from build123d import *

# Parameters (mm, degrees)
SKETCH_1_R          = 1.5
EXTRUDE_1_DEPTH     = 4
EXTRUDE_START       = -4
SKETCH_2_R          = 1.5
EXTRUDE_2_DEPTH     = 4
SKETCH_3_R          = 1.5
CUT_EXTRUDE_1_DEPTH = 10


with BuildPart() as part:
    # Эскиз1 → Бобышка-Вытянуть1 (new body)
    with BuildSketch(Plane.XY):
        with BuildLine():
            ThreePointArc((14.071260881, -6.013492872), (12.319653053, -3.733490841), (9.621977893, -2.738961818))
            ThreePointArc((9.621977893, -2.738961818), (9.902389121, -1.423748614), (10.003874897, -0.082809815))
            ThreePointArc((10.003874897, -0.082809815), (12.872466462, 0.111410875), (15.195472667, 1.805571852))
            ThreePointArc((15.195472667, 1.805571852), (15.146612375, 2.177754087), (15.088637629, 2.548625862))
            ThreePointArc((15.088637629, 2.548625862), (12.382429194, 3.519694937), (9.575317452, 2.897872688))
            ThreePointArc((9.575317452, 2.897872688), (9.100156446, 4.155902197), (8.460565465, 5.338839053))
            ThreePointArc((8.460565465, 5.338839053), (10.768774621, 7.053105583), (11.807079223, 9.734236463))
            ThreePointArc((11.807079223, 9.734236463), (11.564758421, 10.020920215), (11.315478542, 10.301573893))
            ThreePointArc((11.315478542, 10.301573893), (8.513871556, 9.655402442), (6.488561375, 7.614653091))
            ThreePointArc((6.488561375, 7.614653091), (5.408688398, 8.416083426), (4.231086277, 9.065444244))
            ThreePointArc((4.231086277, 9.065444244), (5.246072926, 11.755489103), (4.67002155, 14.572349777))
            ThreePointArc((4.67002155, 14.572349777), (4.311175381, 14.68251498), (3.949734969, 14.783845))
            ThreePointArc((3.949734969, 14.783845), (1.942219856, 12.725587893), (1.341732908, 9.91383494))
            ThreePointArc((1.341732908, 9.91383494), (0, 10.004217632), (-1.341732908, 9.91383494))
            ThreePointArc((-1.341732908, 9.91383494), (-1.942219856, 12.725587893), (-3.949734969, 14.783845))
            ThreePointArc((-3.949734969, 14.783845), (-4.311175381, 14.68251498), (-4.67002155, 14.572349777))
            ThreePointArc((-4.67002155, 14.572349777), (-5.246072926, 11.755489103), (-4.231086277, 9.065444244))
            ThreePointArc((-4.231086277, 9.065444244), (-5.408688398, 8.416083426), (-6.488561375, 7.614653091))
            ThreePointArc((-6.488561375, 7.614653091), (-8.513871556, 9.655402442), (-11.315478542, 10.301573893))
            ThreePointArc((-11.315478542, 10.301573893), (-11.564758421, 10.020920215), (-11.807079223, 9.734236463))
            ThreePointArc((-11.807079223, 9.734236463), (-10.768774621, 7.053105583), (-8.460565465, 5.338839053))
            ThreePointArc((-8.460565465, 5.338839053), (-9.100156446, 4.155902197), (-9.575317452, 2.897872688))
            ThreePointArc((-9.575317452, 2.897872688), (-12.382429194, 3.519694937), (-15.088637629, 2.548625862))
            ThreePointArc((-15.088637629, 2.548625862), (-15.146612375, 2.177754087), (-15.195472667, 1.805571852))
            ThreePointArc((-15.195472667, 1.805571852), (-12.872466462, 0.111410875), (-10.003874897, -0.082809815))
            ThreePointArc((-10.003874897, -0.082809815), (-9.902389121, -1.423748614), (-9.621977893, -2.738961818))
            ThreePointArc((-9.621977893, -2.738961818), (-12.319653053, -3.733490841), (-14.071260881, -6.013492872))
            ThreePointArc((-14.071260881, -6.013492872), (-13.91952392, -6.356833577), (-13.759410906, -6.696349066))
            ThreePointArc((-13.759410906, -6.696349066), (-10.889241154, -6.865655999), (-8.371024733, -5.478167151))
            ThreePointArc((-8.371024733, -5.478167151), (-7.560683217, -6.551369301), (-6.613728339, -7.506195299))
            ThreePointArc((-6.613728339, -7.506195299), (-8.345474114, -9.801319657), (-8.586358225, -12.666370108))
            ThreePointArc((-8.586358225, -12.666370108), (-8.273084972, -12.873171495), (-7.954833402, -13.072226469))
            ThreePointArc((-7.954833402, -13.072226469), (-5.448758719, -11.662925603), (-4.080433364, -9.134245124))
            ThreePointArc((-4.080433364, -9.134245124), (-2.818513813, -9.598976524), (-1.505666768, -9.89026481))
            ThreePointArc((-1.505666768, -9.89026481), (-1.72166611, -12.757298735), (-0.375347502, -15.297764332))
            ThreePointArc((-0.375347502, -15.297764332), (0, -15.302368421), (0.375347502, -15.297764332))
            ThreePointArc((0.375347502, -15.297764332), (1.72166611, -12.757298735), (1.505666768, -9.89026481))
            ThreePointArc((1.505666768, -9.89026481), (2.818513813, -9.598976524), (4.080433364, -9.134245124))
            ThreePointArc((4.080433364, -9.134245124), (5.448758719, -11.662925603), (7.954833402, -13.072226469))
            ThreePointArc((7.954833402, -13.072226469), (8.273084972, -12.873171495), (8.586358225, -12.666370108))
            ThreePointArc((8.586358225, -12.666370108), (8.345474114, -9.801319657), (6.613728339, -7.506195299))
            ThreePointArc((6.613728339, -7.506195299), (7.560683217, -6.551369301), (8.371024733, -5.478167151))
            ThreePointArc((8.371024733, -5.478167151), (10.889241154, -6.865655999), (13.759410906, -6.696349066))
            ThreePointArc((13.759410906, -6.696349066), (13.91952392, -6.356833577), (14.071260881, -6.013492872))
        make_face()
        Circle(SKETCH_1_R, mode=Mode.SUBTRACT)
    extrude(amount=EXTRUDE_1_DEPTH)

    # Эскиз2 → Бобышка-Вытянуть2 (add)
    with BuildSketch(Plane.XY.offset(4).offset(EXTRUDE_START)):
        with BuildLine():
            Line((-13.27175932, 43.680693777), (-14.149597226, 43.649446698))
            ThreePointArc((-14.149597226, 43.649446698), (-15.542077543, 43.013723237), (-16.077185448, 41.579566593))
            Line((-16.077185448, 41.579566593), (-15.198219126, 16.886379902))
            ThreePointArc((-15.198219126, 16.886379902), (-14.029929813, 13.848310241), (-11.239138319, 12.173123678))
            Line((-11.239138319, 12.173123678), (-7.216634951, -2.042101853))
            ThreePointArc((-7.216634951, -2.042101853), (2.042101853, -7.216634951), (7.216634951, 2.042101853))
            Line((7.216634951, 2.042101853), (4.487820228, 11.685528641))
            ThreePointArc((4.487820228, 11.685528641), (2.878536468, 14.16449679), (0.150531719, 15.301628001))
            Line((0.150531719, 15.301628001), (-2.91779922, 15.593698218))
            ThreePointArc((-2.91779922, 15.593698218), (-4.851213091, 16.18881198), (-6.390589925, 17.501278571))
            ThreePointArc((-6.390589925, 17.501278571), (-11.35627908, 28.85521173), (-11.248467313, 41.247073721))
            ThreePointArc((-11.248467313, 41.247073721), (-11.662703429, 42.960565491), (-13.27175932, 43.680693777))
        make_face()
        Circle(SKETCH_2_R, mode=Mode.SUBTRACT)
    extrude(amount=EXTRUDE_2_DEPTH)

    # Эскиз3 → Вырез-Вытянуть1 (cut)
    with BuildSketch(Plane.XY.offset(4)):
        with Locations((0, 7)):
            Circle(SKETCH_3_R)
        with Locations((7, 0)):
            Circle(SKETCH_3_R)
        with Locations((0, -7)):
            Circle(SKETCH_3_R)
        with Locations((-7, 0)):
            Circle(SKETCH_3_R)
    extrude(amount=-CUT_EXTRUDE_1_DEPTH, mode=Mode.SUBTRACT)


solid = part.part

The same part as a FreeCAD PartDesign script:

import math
import FreeCAD as App
import Part
import Sketcher

V = App.Vector

doc = App.newDocument("Part")
params = doc.addObject("Spreadsheet::Sheet", "Params")
for row, (alias, value) in enumerate([
    ("sketch1_diameter", "3 mm"),
    ("pad1_length", "4 mm"),
    ("sketch2_diameter", "3 mm"),
    ("sketch2_radius", "2 mm"),
    ("sketch2_radius2", "5 mm"),
    ("sketch2_radius3", "5 mm"),
    ("sketch2_radius4", "5 mm"),
    ("pad2_length", "4 mm"),
    ("sketch3_diameter", "3 mm"),
    ("pocket1_length", "10 mm"),
], start=1):
    params.set(f"A{row}", alias)
    params.set(f"B{row}", "=" + value)
    params.setAlias(f"B{row}", alias)

body = doc.addObject("PartDesign::Body", "Body")

sketch1 = body.newObject("Sketcher::SketchObject", "Sketch")
sketch1.AttachmentSupport = (doc.getObject("XY_Plane"), [""])
sketch1.MapMode = "FlatFace"
sketch1.addGeometry([
    Part.ArcOfCircle(Part.Circle(V(9.2, -7.9, 0), V(0, 0, 1), 5.2), math.radians(21), math.radians(86)),
    Part.ArcOfCircle(Part.Circle(V(0, 0, 0), V(0, 0, 1), 10), math.radians(-15.89), math.radians(-0.47)),
    Part.ArcOfCircle(Part.Circle(V(11.1, 5, 0), V(0, 0, 1), 5.2), math.radians(-102), math.radians(-38)),
    Part.ArcOfCircle(Part.Circle(V(0, 0, 0), V(0, 0, 1), 15.3), math.radians(6.78), math.radians(9.59)),
    Part.ArcOfCircle(Part.Circle(V(12.1, -1.6, 0), V(0, 0, 1), 5.2), math.radians(54), math.radians(119)),
    Part.ArcOfCircle(Part.Circle(V(0, 0, 0), V(0, 0, 1), 10), math.radians(16.84), math.radians(32.25)),
    Part.ArcOfCircle(Part.Circle(V(6.6, 10.2, 0), V(0, 0, 1), 5.2), math.radians(-70), math.radians(-5)),
    Part.ArcOfCircle(Part.Circle(V(0, 0, 0), V(0, 0, 1), 15.3), math.radians(39.5), math.radians(42.31)),
    Part.ArcOfCircle(Part.Circle(V(11, 5.1, 0), V(0, 0, 1), 5.2), math.radians(87), math.radians(151)),
    Part.ArcOfCircle(Part.Circle(V(0, 0, 0), V(0, 0, 1), 10), math.radians(49.57), math.radians(64.98)),
    Part.ArcOfCircle(Part.Circle(V(0.1, 12.2, 0), V(0, 0, 1), 5.2), math.radians(-37), math.radians(28)),
    Part.ArcOfCircle(Part.Circle(V(0, 0, 0), V(0, 0, 1), 15.3), math.radians(72.23), math.radians(75.04)),
    Part.ArcOfCircle(Part.Circle(V(6.5, 10.3, 0), V(0, 0, 1), 5.2), math.radians(120), math.radians(184)),
    Part.ArcOfCircle(Part.Circle(V(0, 0, 0), V(0, 0, 1), 10), math.radians(82.29), math.radians(97.71)),
    Part.ArcOfCircle(Part.Circle(V(-6.5, 10.3, 0), V(0, 0, 1), 5.2), math.radians(-4), math.radians(60)),
    Part.ArcOfCircle(Part.Circle(V(0, 0, 0), V(0, 0, 1), 15.3), math.radians(104.96), math.radians(107.77)),
    Part.ArcOfCircle(Part.Circle(V(-0.1, 12.2, 0), V(0, 0, 1), 5.2), math.radians(152), math.radians(217)),
    Part.ArcOfCircle(Part.Circle(V(0, 0, 0), V(0, 0, 1), 10), math.radians(115.02), math.radians(130.43)),
    Part.ArcOfCircle(Part.Circle(V(-11, 5.1, 0), V(0, 0, 1), 5.2), math.radians(29), math.radians(93)),
    Part.ArcOfCircle(Part.Circle(V(0, 0, 0), V(0, 0, 1), 15.3), math.radians(137.69), math.radians(140.5)),
    Part.ArcOfCircle(Part.Circle(V(-6.6, 10.2, 0), V(0, 0, 1), 5.2), math.radians(-175), math.radians(-110)),
    Part.ArcOfCircle(Part.Circle(V(0, 0, 0), V(0, 0, 1), 10), math.radians(147.75), math.radians(163.16)),
    Part.ArcOfCircle(Part.Circle(V(-12.1, -1.6, 0), V(0, 0, 1), 5.2), math.radians(61), math.radians(126)),
    Part.ArcOfCircle(Part.Circle(V(0, 0, 0), V(0, 0, 1), 15.3), math.radians(170.41), math.radians(173.22)),
    Part.ArcOfCircle(Part.Circle(V(-11.1, 5, 0), V(0, 0, 1), 5.2), math.radians(-142), math.radians(-78)),
    Part.ArcOfCircle(Part.Circle(V(0, 0, 0), V(0, 0, 1), 10), math.radians(-179.53), math.radians(-164.11)),
    Part.ArcOfCircle(Part.Circle(V(-9.2, -7.9, 0), V(0, 0, 1), 5.2), math.radians(94), math.radians(159)),
    Part.ArcOfCircle(Part.Circle(V(0, 0, 0), V(0, 0, 1), 15.3), math.radians(-156.86), math.radians(-154.05)),
    Part.ArcOfCircle(Part.Circle(V(-12, -1.8, 0), V(0, 0, 1), 5.2), math.radians(-109), math.radians(-45)),
    Part.ArcOfCircle(Part.Circle(V(0, 0, 0), V(0, 0, 1), 10), math.radians(-146.8), math.radians(-131.38)),
    Part.ArcOfCircle(Part.Circle(V(-3.5, -11.7, 0), V(0, 0, 1), 5.2), math.radians(127), math.radians(191)),
    Part.ArcOfCircle(Part.Circle(V(0, 0, 0), V(0, 0, 1), 15.3), math.radians(-124.13), math.radians(-121.32)),
    Part.ArcOfCircle(Part.Circle(V(-9.1, -8, 0), V(0, 0, 1), 5.2), math.radians(-77), math.radians(-12)),
    Part.ArcOfCircle(Part.Circle(V(0, 0, 0), V(0, 0, 1), 10), math.radians(-114.07), math.radians(-98.66)),
    Part.ArcOfCircle(Part.Circle(V(3.3, -11.7, 0), V(0, 0, 1), 5.2), math.radians(160), math.radians(224)),
    Part.ArcOfCircle(Part.Circle(V(0, 0, 0), V(0, 0, 1), 15.3), math.radians(-91.41), math.radians(-88.59)),
    Part.ArcOfCircle(Part.Circle(V(-3.3, -11.7, 0), V(0, 0, 1), 5.2), math.radians(-44), math.radians(20)),
    Part.ArcOfCircle(Part.Circle(V(0, 0, 0), V(0, 0, 1), 10), math.radians(-81.34), math.radians(-65.93)),
    Part.ArcOfCircle(Part.Circle(V(9.1, -8, 0), V(0, 0, 1), 5.2), math.radians(-168), math.radians(-103)),
    Part.ArcOfCircle(Part.Circle(V(0, 0, 0), V(0, 0, 1), 15.3), math.radians(-58.68), math.radians(-55.87)),
    Part.ArcOfCircle(Part.Circle(V(3.5, -11.7, 0), V(0, 0, 1), 5.2), math.radians(-11), math.radians(53)),
    Part.ArcOfCircle(Part.Circle(V(0, 0, 0), V(0, 0, 1), 10), math.radians(-48.62), math.radians(-33.2)),
    Part.ArcOfCircle(Part.Circle(V(12, -1.8, 0), V(0, 0, 1), 5.2), math.radians(-135), math.radians(-71)),
    Part.ArcOfCircle(Part.Circle(V(0, 0, 0), V(0, 0, 1), 15.3), math.radians(-25.95), math.radians(-23.14)),
    Part.Circle(V(0, 0, 0), V(0, 0, 1), 1.5),
], False)
sketch1.addConstraint([
    Sketcher.Constraint("Coincident", 0, 2, 1, 1),
    Sketcher.Constraint("Coincident", 1, 2, 2, 1),
    Sketcher.Constraint("Coincident", 2, 2, 3, 1),
    Sketcher.Constraint("Coincident", 3, 2, 4, 1),
    Sketcher.Constraint("Coincident", 4, 2, 5, 1),
    Sketcher.Constraint("Coincident", 5, 2, 6, 1),
    Sketcher.Constraint("Coincident", 6, 2, 7, 1),
    Sketcher.Constraint("Coincident", 7, 2, 8, 1),
    Sketcher.Constraint("Coincident", 8, 2, 9, 1),
    Sketcher.Constraint("Coincident", 9, 2, 10, 1),
    Sketcher.Constraint("Coincident", 10, 2, 11, 1),
    Sketcher.Constraint("Coincident", 11, 2, 12, 1),
    Sketcher.Constraint("Coincident", 12, 2, 13, 1),
    Sketcher.Constraint("Coincident", 13, 2, 14, 1),
    Sketcher.Constraint("Coincident", 14, 2, 15, 1),
    Sketcher.Constraint("Coincident", 15, 2, 16, 1),
    Sketcher.Constraint("Coincident", 16, 2, 17, 1),
    Sketcher.Constraint("Coincident", 17, 2, 18, 1),
    Sketcher.Constraint("Coincident", 18, 2, 19, 1),
    Sketcher.Constraint("Coincident", 19, 2, 20, 1),
    Sketcher.Constraint("Coincident", 20, 2, 21, 1),
    Sketcher.Constraint("Coincident", 21, 2, 22, 1),
    Sketcher.Constraint("Coincident", 22, 2, 23, 1),
    Sketcher.Constraint("Coincident", 23, 2, 24, 1),
    Sketcher.Constraint("Coincident", 24, 2, 25, 1),
    Sketcher.Constraint("Coincident", 25, 2, 26, 1),
    Sketcher.Constraint("Coincident", 26, 2, 27, 1),
    Sketcher.Constraint("Coincident", 27, 2, 28, 1),
    Sketcher.Constraint("Coincident", 28, 2, 29, 1),
    Sketcher.Constraint("Coincident", 29, 2, 30, 1),
    Sketcher.Constraint("Coincident", 30, 2, 31, 1),
    Sketcher.Constraint("Coincident", 31, 2, 32, 1),
    Sketcher.Constraint("Coincident", 32, 2, 33, 1),
    Sketcher.Constraint("Coincident", 33, 2, 34, 1),
    Sketcher.Constraint("Coincident", 34, 2, 35, 1),
    Sketcher.Constraint("Coincident", 35, 2, 36, 1),
    Sketcher.Constraint("Coincident", 36, 2, 37, 1),
    Sketcher.Constraint("Coincident", 37, 2, 38, 1),
    Sketcher.Constraint("Coincident", 38, 2, 39, 1),
    Sketcher.Constraint("Coincident", 39, 2, 40, 1),
    Sketcher.Constraint("Coincident", 40, 2, 41, 1),
    Sketcher.Constraint("Coincident", 41, 2, 42, 1),
    Sketcher.Constraint("Coincident", 42, 2, 43, 1),
    Sketcher.Constraint("Coincident", 43, 2, 0, 1),
    Sketcher.Constraint("Coincident", 1, 3, -1, 1),
    Sketcher.Constraint("Coincident", 3, 3, -1, 1),
    Sketcher.Constraint("Coincident", 5, 3, -1, 1),
    Sketcher.Constraint("Coincident", 7, 3, -1, 1),
    Sketcher.Constraint("Coincident", 9, 3, -1, 1),
    Sketcher.Constraint("Coincident", 11, 3, -1, 1),
    Sketcher.Constraint("Coincident", 13, 3, -1, 1),
    Sketcher.Constraint("Coincident", 15, 3, -1, 1),
    Sketcher.Constraint("Coincident", 17, 3, -1, 1),
    Sketcher.Constraint("Coincident", 19, 3, -1, 1),
    Sketcher.Constraint("Coincident", 21, 3, -1, 1),
    Sketcher.Constraint("Coincident", 23, 3, -1, 1),
    Sketcher.Constraint("Coincident", 25, 3, -1, 1),
    Sketcher.Constraint("Coincident", 27, 3, -1, 1),
    Sketcher.Constraint("Coincident", 29, 3, -1, 1),
    Sketcher.Constraint("Coincident", 31, 3, -1, 1),
    Sketcher.Constraint("Coincident", 33, 3, -1, 1),
    Sketcher.Constraint("Coincident", 35, 3, -1, 1),
    Sketcher.Constraint("Coincident", 37, 3, -1, 1),
    Sketcher.Constraint("Coincident", 39, 3, -1, 1),
    Sketcher.Constraint("Coincident", 41, 3, -1, 1),
    Sketcher.Constraint("Coincident", 43, 3, -1, 1),
    Sketcher.Constraint("Coincident", 44, 3, -1, 1),
    Sketcher.Constraint("Equal", 0, 2),
    Sketcher.Constraint("Equal", 2, 4),
    Sketcher.Constraint("Equal", 1, 5),
    Sketcher.Constraint("Equal", 4, 6),
    Sketcher.Constraint("Equal", 6, 8),
    Sketcher.Constraint("Equal", 5, 9),
    Sketcher.Constraint("Equal", 8, 10),
    Sketcher.Constraint("Equal", 7, 11),
    Sketcher.Constraint("Equal", 10, 12),
    Sketcher.Constraint("Equal", 9, 13),
    Sketcher.Constraint("Equal", 12, 14),
    Sketcher.Constraint("Equal", 11, 15),
    Sketcher.Constraint("Equal", 14, 16),
    Sketcher.Constraint("Equal", 13, 17),
    Sketcher.Constraint("Equal", 16, 18),
    Sketcher.Constraint("Equal", 15, 19),
    Sketcher.Constraint("Equal", 18, 20),
    Sketcher.Constraint("Equal", 17, 21),
    Sketcher.Constraint("Equal", 20, 22),
    Sketcher.Constraint("Equal", 15, 23),
    Sketcher.Constraint("Equal", 22, 24),
    Sketcher.Constraint("Equal", 21, 25),
    Sketcher.Constraint("Equal", 24, 26),
    Sketcher.Constraint("Equal", 19, 27),
    Sketcher.Constraint("Equal", 26, 28),
    Sketcher.Constraint("Equal", 25, 29),
    Sketcher.Constraint("Equal", 28, 30),
    Sketcher.Constraint("Equal", 27, 31),
    Sketcher.Constraint("Equal", 30, 32),
    Sketcher.Constraint("Equal", 29, 33),
    Sketcher.Constraint("Equal", 32, 34),
    Sketcher.Constraint("Equal", 31, 35),
    Sketcher.Constraint("Equal", 34, 36),
    Sketcher.Constraint("Equal", 33, 37),
    Sketcher.Constraint("Equal", 36, 38),
    Sketcher.Constraint("Equal", 35, 39),
    Sketcher.Constraint("Equal", 38, 40),
    Sketcher.Constraint("Equal", 37, 41),
    Sketcher.Constraint("Equal", 40, 42),
    Sketcher.Constraint("Equal", 39, 43),
    Sketcher.Constraint("Symmetric", 12, 3, 14, 3, -2),
    Sketcher.Constraint("Symmetric", 10, 3, 16, 3, -2),
    Sketcher.Constraint("Symmetric", 8, 3, 18, 3, -2),
    Sketcher.Constraint("Symmetric", 6, 3, 20, 3, -2),
    Sketcher.Constraint("Symmetric", 4, 3, 22, 3, -2),
    Sketcher.Constraint("Symmetric", 2, 3, 24, 3, -2),
    Sketcher.Constraint("Symmetric", 0, 3, 26, 3, -2),
    Sketcher.Constraint("Symmetric", 34, 3, 36, 3, -2),
    Sketcher.Constraint("Symmetric", 32, 3, 38, 3, -2),
    Sketcher.Constraint("Symmetric", 30, 3, 40, 3, -2),
    Sketcher.Constraint("Symmetric", 28, 3, 42, 3, -2),
    Sketcher.Constraint("Horizontal", 3, 2, 22, 2),
    Sketcher.Constraint("Diameter", 44, 3.0),
    Sketcher.Constraint("Radius", 7, 15.30237),
    Sketcher.Constraint("DistanceX", -1, 1, 4, 3, 12.055),
    Sketcher.Constraint("DistanceX", -1, 1, 12, 3, 6.508),
    Sketcher.Constraint("Radius", 0, 5.179263),
    Sketcher.Constraint("Radius", 1, 10.004218),
    Sketcher.Constraint("DistanceY", -1, 1, 2, 3, 4.978689),
    Sketcher.Constraint("DistanceX", -1, 1, 8, 3, 11.03294),
    Sketcher.Constraint("DistanceY", 30, 3, -1, 1, 11.650719),
    Sketcher.Constraint("DistanceY", 32, 3, -1, 1, 8.030559),
    Sketcher.Constraint("DistanceY", 34, 3, -1, 1, 11.697591),
    Sketcher.Constraint("DistanceY", 0, 2, -1, 1, 2.738962),
    Sketcher.Constraint("DistanceY", 1, 2, -1, 1, 0.08281),
    Sketcher.Constraint("DistanceY", -1, 1, 5, 2, 5.338839),
    Sketcher.Constraint("DistanceX", -1, 1, 6, 2, 11.807079),
    Sketcher.Constraint("DistanceX", -1, 1, 7, 2, 11.315479),
    Sketcher.Constraint("DistanceX", -1, 1, 10, 2, 4.670022),
    Sketcher.Constraint("DistanceX", 26, 2, -1, 1, 14.071261),
    Sketcher.Constraint("DistanceX", 27, 2, -1, 1, 13.759411),
    Sketcher.Constraint("DistanceX", 29, 2, -1, 1, 6.613728),
    Sketcher.Constraint("DistanceY", 4, 3, -1, 1, 1.649208),
    Sketcher.Constraint("DistanceX", -1, 1, 10, 3, 0.083184),
    Sketcher.Constraint("DistanceY", -1, 1, 12, 3, 10.280508),
    Sketcher.Constraint("DistanceX", 28, 3, -1, 1, 12.031323),
    Sketcher.Constraint("DistanceX", 32, 3, -1, 1, 9.140734),
    Sketcher.Constraint("DistanceX", -1, 1, 34, 3, 3.348027),
])
sketch1.setExpression("Constraints[119]", "Params.sketch1_diameter")
pad1 = body.newObject("PartDesign::Pad", "Pad")
pad1.Profile = sketch1
pad1.setExpression("Length", "Params.pad1_length")

sketch2 = body.newObject("Sketcher::SketchObject", "Sketch001")
sketch2.AttachmentSupport = (doc.getObject("XY_Plane"), [""])
sketch2.MapMode = "FlatFace"
sketch2.addGeometry([
    Part.LineSegment(V(-13.271759, 43.680694, 0), V(-14.149597, 43.649447, 0)),
    Part.ArcOfCircle(Part.Circle(V(-14.078451, 41.650713, 0), V(0, 0, 1), 2), math.radians(92.038611), math.radians(182.038611)),
    Part.LineSegment(V(-16.077185, 41.579567, 0), V(-15.198219, 16.88638, 0)),
    Part.ArcOfCircle(Part.Circle(V(-10.201384, 17.064245, 0), V(0, 0, 1), 5), math.radians(-177.961389), math.radians(-101.978868)),
    Part.LineSegment(V(-11.239138, 12.173124, 0), V(-7.216635, -2.042102, 0)),
    Part.ArcOfCircle(Part.Circle(V(0, 0, 0), V(0, 0, 1), 7.5), math.radians(-164.2), math.radians(15.8)),
    Part.LineSegment(V(7.216635, 2.042102, 0), V(4.48782, 11.685529, 0)),
    Part.ArcOfCircle(Part.Circle(V(-0.32327, 10.324127, 0), V(0, 0, 1), 5), math.radians(15.8), math.radians(84.562477)),
    Part.LineSegment(V(0.150532, 15.301628, 0), V(-2.917799, 15.593698, 0)),
    Part.ArcOfCircle(Part.Circle(V(-2.443998, 20.571199, 0), V(0, 0, 1), 5), math.radians(-142.121864), math.radians(-95.437523)),
    Part.ArcOfCircle(Part.Circle(V(17.696795, 34.798844, 0), V(0, 0, 1), 29.654812), math.radians(167.441111), math.radians(215.682777)),
    Part.ArcOfCircle(Part.Circle(V(-13.200613, 41.68196, 0), V(0, 0, 1), 2), math.radians(-12.558889), math.radians(92.038611)),
    Part.Circle(V(0, 0, 0), V(0, 0, 1), 1.5),
], False)
sketch2.addConstraint([
    Sketcher.Constraint("Coincident", 0, 2, 1, 1),
    Sketcher.Constraint("Coincident", 1, 2, 2, 1),
    Sketcher.Constraint("Coincident", 2, 2, 3, 1),
    Sketcher.Constraint("Coincident", 3, 2, 4, 1),
    Sketcher.Constraint("Coincident", 4, 2, 5, 1),
    Sketcher.Constraint("Coincident", 5, 2, 6, 1),
    Sketcher.Constraint("Coincident", 6, 2, 7, 1),
    Sketcher.Constraint("Coincident", 7, 2, 8, 1),
    Sketcher.Constraint("Coincident", 8, 2, 9, 2),
    Sketcher.Constraint("Coincident", 9, 1, 10, 2),
    Sketcher.Constraint("Coincident", 10, 1, 11, 1),
    Sketcher.Constraint("Coincident", 11, 2, 0, 1),
    Sketcher.Constraint("Coincident", 5, 3, -1, 1),
    Sketcher.Constraint("Coincident", 12, 3, -1, 1),
    Sketcher.Constraint("Diameter", 12, 3.0),
    Sketcher.Constraint("Radius", 1, 2.0),
    Sketcher.Constraint("Radius", 3, 5.0),
    Sketcher.Constraint("Radius", 7, 5.0),
    Sketcher.Constraint("Radius", 9, 5.0),
    Sketcher.Constraint("Radius", 11, 2.0),
    Sketcher.Constraint("Radius", 5, 7.5),
    Sketcher.Constraint("Radius", 10, 29.654812),
    Sketcher.Constraint("Distance", 8, 3.0822),
    Sketcher.Constraint("DistanceY", -1, 1, 9, 3, 20.571199),
    Sketcher.Constraint("DistanceY", 4, 2, -1, 1, 2.042102),
    Sketcher.Constraint("DistanceY", -1, 1, 5, 2, 2.042102),
    Sketcher.Constraint("DistanceX", 8, 2, -1, 1, 2.917799),
    Sketcher.Constraint("DistanceY", -1, 1, 8, 2, 15.593698),
    Sketcher.Constraint("DistanceY", 3, 3, 10, 3, 17.734599),
    Sketcher.Constraint("DistanceX", 0, 2, 9, 3, 11.705599),
    Sketcher.Constraint("DistanceY", 3, 3, 0, 2, 26.585202),
    Sketcher.Constraint("DistanceX", 1, 2, 3, 3, 5.875802),
    Sketcher.Constraint("DistanceY", 7, 3, 6, 2, 1.361401),
    Sketcher.Constraint("DistanceX", 7, 3, 7, 2, 0.473801),
    Sketcher.Constraint("Distance", 6, 10.022081),
    Sketcher.Constraint("DistanceX", 1, 3, -1, 1, 14.078451),
    Sketcher.Constraint("DistanceY", -1, 1, 11, 3, 41.68196),
    Sketcher.Constraint("DistanceX", 2, 2, -1, 1, 15.198219),
    Sketcher.Constraint("DistanceY", -1, 1, 2, 2, 16.88638),
    Sketcher.Constraint("DistanceX", 3, 2, -1, 1, 11.239138),
    Sketcher.Constraint("DistanceX", 9, 1, -1, 1, 6.39059),
    Sketcher.Constraint("DistanceX", 11, 2, -1, 1, 13.271759),
    Sketcher.Constraint("DistanceX", 3, 3, 10, 3, 27.898179),
    Sketcher.Constraint("DistanceY", 10, 1, 1, 3, 0.403639),
])
sketch2.setExpression("Constraints[14]", "Params.sketch2_diameter")
sketch2.setExpression("Constraints[15]", "Params.sketch2_radius")
sketch2.setExpression("Constraints[16]", "Params.sketch2_radius2")
sketch2.setExpression("Constraints[17]", "Params.sketch2_radius3")
sketch2.setExpression("Constraints[18]", "Params.sketch2_radius4")
pad2 = body.newObject("PartDesign::Pad", "Pad001")
pad2.Profile = sketch2
pad2.setExpression("Length", "Params.pad2_length")

sketch3 = body.newObject("Sketcher::SketchObject", "Sketch002")
sketch3.AttachmentSupport = (doc.getObject("XY_Plane"), [""])
sketch3.MapMode = "FlatFace"
sketch3.AttachmentOffset = App.Placement(V(0, 0, 4), App.Rotation())
sketch3.addGeometry([
    Part.Circle(V(0, 7, 0), V(0, 0, 1), 1.5),
    Part.Circle(V(7, 0, 0), V(0, 0, 1), 1.5),
    Part.Circle(V(0, -7, 0), V(0, 0, 1), 1.5),
    Part.Circle(V(-7, 0, 0), V(0, 0, 1), 1.5),
], False)
sketch3.addConstraint([
    Sketcher.Constraint("Equal", 0, 1),
    Sketcher.Constraint("Equal", 1, 2),
    Sketcher.Constraint("Equal", 2, 3),
    Sketcher.Constraint("Symmetric", 0, 3, 2, 3, -1, 1),
    Sketcher.Constraint("Symmetric", 1, 3, 3, 3, -1, 1),
    Sketcher.Constraint("PointOnObject", 0, 3, -2),
    Sketcher.Constraint("PointOnObject", 1, 3, -1),
    Sketcher.Constraint("Diameter", 0, 3.0),
    Sketcher.Constraint("DistanceY", -1, 1, 0, 3, 7.0),
    Sketcher.Constraint("DistanceX", -1, 1, 1, 3, 7.0),
])
sketch3.setExpression("Constraints[7]", "Params.sketch3_diameter")
pocket1 = body.newObject("PartDesign::Pocket", "Pocket")
pocket1.Profile = sketch3
pocket1.setExpression("Length", "Params.pocket1_length")

doc.recompute()
